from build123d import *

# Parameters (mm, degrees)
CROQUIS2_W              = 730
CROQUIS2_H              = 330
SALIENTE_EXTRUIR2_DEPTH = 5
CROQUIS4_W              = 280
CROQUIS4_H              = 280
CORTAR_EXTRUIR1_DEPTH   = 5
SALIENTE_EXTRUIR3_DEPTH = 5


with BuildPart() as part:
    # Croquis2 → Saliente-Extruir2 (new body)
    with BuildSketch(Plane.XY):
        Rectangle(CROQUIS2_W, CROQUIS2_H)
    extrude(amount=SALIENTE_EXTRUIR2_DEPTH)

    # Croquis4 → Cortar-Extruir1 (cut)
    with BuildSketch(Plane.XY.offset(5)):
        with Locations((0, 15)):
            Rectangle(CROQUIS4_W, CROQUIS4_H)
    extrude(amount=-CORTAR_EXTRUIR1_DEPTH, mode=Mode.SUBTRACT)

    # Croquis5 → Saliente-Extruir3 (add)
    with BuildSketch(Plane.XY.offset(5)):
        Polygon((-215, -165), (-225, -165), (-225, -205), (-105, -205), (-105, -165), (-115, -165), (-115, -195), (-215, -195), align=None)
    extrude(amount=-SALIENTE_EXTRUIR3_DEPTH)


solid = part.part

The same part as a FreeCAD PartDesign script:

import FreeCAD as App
import Part
import Sketcher


def add_polygon(sketch, points):
    """Adds a closed chain of lines whose ends are joined by coincident constraints."""
    first, n = sketch.GeometryCount, len(points)
    for a, b in zip(points, points[1:] + points[:1]):
        sketch.addGeometry(Part.LineSegment(App.Vector(*a, 0), App.Vector(*b, 0)), False)
    for i in range(n):
        sketch.addConstraint(Sketcher.Constraint("Coincident", first + i, 2, first + (i + 1) % n, 1))

doc = App.newDocument("Part")
params = doc.addObject("Spreadsheet::Sheet", "Params")
for row, (alias, value) in enumerate([
    ("sketch1_width", "730 mm"),
    ("sketch1_height", "330 mm"),
    ("pad1_length", "5 mm"),
    ("sketch2_width", "280 mm"),
    ("pocket1_length", "5 mm"),
    ("sketch3_width", "10 mm"),
    ("sketch3_width2", "120 mm"),
    ("sketch3_height", "40 mm"),
    ("sketch3_height2", "30 mm"),
    ("pad2_length", "5 mm"),
], start=1):
    params.set(f"A{row}", alias)
    params.set(f"B{row}", "=" + value)
    params.setAlias(f"B{row}", alias)

body = doc.addObject("PartDesign::Body", "Body")

# Sketch on XY plane
sketch1 = body.newObject("Sketcher::SketchObject", "Sketch")
sketch1.AttachmentSupport = (doc.getObject("XY_Plane"), [""])
sketch1.MapMode = "FlatFace"
add_polygon(sketch1, [(-365, 165), (-365, -165), (365, -165), (365, 165)])  # lines 0-3
sketch1.addConstraint(Sketcher.Constraint("Vertical", 0))
sketch1.addConstraint(Sketcher.Constraint("Horizontal", 1))
sketch1.addConstraint(Sketcher.Constraint("Vertical", 2))
sketch1.addConstraint(Sketcher.Constraint("Horizontal", 3))
sketch1.addConstraint(Sketcher.Constraint("Symmetric", 0, 2, 2, 2, -1, 1))
sketch1.addConstraint(Sketcher.Constraint("DistanceX", 1, 1, 1, 2, 730.0))
sketch1.addConstraint(Sketcher.Constraint("DistanceY", 0, 2, 0, 1, 330.0))
sketch1.setExpression("Constraints[9]", "Params.sketch1_width")
sketch1.setExpression("Constraints[10]", "Params.sketch1_height")
pad1 = body.newObject("PartDesign::Pad", "Pad")
pad1.Profile = sketch1
pad1.setExpression("Length", "Params.pad1_length")

# Sketch on XY plane
sketch2 = body.newObject("Sketcher::SketchObject", "Sketch001")
sketch2.AttachmentSupport = (doc.getObject("XY_Plane"), [""])
sketch2.MapMode = "FlatFace"
sketch2.AttachmentOffset = App.Placement(App.Vector(0, 0, 5), App.Rotation())
add_polygon(sketch2, [(-140, 155), (-140, -125), (140, -125), (140, 155)])  # lines 0-3
sketch2.addConstraint(Sketcher.Constraint("Vertical", 0))
sketch2.addConstraint(Sketcher.Constraint("Horizontal", 1))
sketch2.addConstraint(Sketcher.Constraint("Vertical", 2))
sketch2.addConstraint(Sketcher.Constraint("Horizontal", 3))
sketch2.addConstraint(Sketcher.Constraint("Equal", 3, 0))
sketch2.addConstraint(Sketcher.Constraint("DistanceX", 1, 1, 1, 2, 280.0))
sketch2.addConstraint(Sketcher.Constraint("DistanceX", 0, 2, -1, 1, 140.0))
sketch2.addConstraint(Sketcher.Constraint("DistanceY", 0, 2, -1, 1, 125.0))
sketch2.setExpression("Constraints[9]", "Params.sketch2_width")
pocket1 = body.newObject("PartDesign::Pocket", "Pocket")
pocket1.Profile = sketch2
pocket1.setExpression("Length", "Params.pocket1_length")

# Sketch on XY plane
sketch3 = body.newObject("Sketcher::SketchObject", "Sketch002")
sketch3.AttachmentSupport = (doc.getObject("XY_Plane"), [""])
sketch3.MapMode = "FlatFace"
sketch3.AttachmentOffset = App.Placement(App.Vector(0, 0, 5), App.Rotation())
add_polygon(sketch3, [(-215, -165), (-225, -165), (-225, -205), (-105, -205), (-105, -165), (-115, -165), (-115, -195), (-215, -195)])  # lines 0-7
sketch3.addConstraint(Sketcher.Constraint("Horizontal", 0))
sketch3.addConstraint(Sketcher.Constraint("Vertical", 1))
sketch3.addConstraint(Sketcher.Constraint("Horizontal", 2))
sketch3.addConstraint(Sketcher.Constraint("Vertical", 3))
sketch3.addConstraint(Sketcher.Constraint("Horizontal", 4))
sketch3.addConstraint(Sketcher.Constraint("Vertical", 5))
sketch3.addConstraint(Sketcher.Constraint("Horizontal", 6))
sketch3.addConstraint(Sketcher.Constraint("Vertical", 7))
sketch3.addConstraint(Sketcher.Constraint("Horizontal", 0, 2, 3, 2))
sketch3.addConstraint(Sketcher.Constraint("Equal", 0, 4))
sketch3.addConstraint(Sketcher.Constraint("DistanceX", 0, 2, 0, 1, 10.0))
sketch3.addConstraint(Sketcher.Constraint("DistanceX", 2, 1, 2, 2, 120.0))
sketch3.addConstraint(Sketcher.Constraint("DistanceY", 1, 2, 1, 1, 40.0))
sketch3.addConstraint(Sketcher.Constraint("DistanceY", 5, 2, 5, 1, 30.0))
sketch3.addConstraint(Sketcher.Constraint("DistanceX", 0, 2, -1, 1, 225.0))
sketch3.addConstraint(Sketcher.Constraint("DistanceY", 0, 2, -1, 1, 165.0))
sketch3.setExpression("Constraints[18]", "Params.sketch3_width")
sketch3.setExpression("Constraints[19]", "Params.sketch3_width2")
sketch3.setExpression("Constraints[20]", "Params.sketch3_height")
sketch3.setExpression("Constraints[21]", "Params.sketch3_height2")
pad2 = body.newObject("PartDesign::Pad", "Pad001")
pad2.Profile = sketch3
pad2.setExpression("Length", "Params.pad2_length")
pad2.Reversed = True

doc.recompute()
